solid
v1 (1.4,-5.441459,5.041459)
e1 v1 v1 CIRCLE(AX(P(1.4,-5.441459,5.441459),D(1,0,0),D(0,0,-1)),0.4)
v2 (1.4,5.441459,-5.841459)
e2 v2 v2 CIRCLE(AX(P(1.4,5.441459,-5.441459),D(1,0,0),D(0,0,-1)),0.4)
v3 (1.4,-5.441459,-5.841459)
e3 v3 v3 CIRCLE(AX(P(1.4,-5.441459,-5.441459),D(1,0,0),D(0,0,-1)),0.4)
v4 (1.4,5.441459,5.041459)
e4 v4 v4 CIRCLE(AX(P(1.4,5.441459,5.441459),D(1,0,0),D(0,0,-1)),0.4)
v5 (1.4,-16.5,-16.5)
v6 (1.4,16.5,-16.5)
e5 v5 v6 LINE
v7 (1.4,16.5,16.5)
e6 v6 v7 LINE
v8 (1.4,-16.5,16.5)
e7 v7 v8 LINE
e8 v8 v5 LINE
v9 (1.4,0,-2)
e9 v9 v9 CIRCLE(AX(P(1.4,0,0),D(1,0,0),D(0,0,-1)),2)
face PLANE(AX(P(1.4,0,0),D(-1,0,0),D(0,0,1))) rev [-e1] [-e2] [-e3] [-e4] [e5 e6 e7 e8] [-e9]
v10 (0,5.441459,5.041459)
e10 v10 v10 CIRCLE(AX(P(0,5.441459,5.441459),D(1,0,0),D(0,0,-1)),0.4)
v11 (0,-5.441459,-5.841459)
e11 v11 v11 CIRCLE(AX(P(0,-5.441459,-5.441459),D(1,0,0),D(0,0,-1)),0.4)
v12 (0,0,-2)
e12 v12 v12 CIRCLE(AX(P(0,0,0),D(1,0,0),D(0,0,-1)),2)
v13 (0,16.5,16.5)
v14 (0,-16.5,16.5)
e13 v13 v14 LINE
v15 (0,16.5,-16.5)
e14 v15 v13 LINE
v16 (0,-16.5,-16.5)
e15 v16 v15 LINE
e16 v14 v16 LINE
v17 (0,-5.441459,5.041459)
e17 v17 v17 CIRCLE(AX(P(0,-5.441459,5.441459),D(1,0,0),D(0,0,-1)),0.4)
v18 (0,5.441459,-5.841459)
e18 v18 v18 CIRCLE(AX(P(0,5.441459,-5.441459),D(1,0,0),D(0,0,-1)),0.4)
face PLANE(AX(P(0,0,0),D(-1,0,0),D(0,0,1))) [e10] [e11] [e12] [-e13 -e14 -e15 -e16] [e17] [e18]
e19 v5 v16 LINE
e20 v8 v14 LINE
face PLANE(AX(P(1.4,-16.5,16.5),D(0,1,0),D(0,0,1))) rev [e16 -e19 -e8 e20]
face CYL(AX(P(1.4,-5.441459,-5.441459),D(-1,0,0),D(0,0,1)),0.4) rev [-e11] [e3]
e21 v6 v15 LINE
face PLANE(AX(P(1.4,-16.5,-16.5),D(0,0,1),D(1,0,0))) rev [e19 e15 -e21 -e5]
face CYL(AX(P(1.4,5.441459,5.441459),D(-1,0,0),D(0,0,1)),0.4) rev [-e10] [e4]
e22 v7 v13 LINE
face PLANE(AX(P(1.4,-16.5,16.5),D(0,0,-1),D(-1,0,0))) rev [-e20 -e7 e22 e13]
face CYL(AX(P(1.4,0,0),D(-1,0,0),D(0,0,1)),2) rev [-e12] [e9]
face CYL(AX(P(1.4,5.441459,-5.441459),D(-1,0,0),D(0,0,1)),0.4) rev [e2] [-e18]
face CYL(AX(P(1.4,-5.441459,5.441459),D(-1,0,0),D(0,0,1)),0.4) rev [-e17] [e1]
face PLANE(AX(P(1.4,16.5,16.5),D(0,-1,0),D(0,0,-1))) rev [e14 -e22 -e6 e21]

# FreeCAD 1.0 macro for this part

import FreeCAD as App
import Part
import Sketcher
Q = App.Units.Quantity

doc = App.newDocument("Part")
body = doc.addObject("PartDesign::Body", "Body")

# Sketch on YZ plane
sketch1 = doc.addObject("Sketcher::SketchObject", "Sketch")
body.addObject(sketch1)
sketch1.AttachmentSupport = (doc.YZ_Plane, [""])
sketch1.MapMode = "FlatFace"
sketch1.addGeometry([
    Part.LineSegment(App.Vector(16.5, 16.5, 0), App.Vector(-16.5, 16.5, 0)),  # 0
    Part.LineSegment(App.Vector(-16.5, 16.5, 0), App.Vector(-16.5, -16.5, 0)),  # 1
    Part.LineSegment(App.Vector(-16.5, -16.5, 0), App.Vector(16.5, -16.5, 0)),  # 2
    Part.LineSegment(App.Vector(16.5, -16.5, 0), App.Vector(16.5, 16.5, 0)),  # 3
    Part.Circle(App.Vector(-5.44, 5.44, 0), App.Vector(0, 0, 1), 0.4),  # 4
    Part.Circle(App.Vector(-5.44, -5.44, 0), App.Vector(0, 0, 1), 0.4),  # 5
    Part.Circle(App.Vector(5.44, 5.44, 0), App.Vector(0, 0, 1), 0.4),  # 6
    Part.Circle(App.Vector(0, 0, 0), App.Vector(0, 0, 1), 2),  # 7
    Part.Circle(App.Vector(5.44, -5.44, 0), App.Vector(0, 0, 1), 0.4),  # 8
], False)
sketch1.addConstraint([
    Sketcher.Constraint("Coincident", 0, 2, 1, 1),
    Sketcher.Constraint("Coincident", 1, 2, 2, 1),
    Sketcher.Constraint("Coincident", 2, 2, 3, 1),
    Sketcher.Constraint("Coincident", 3, 2, 0, 1),
    Sketcher.Constraint("Horizontal", 0),
    Sketcher.Constraint("Vertical", 1),
    Sketcher.Constraint("Horizontal", 2),
    Sketcher.Constraint("Vertical", 3),
    Sketcher.Constraint("Coincident", 7, 3, -1, 1),
    Sketcher.Constraint("Equal", 4, 5),
    Sketcher.Constraint("Equal", 5, 6),
    Sketcher.Constraint("Equal", 6, 8),
    Sketcher.Constraint("Symmetric", 5, 3, 6, 3, -1, 1),
    Sketcher.Constraint("Symmetric", 4, 3, 8, 3, -1, 1),
    Sketcher.Constraint("Symmetric", 0, 2, 2, 2, -1, 1),
    Sketcher.Constraint("Symmetric", 4, 3, 6, 3, -2),
    Sketcher.Constraint("Equal", 2, 1),
    Sketcher.Constraint("Diameter", 7, Q("4 mm")),
    Sketcher.Constraint("Diameter", 4, Q("0.8 mm")),
    Sketcher.Constraint("DistanceX", 0, 2, 0, 1, Q("33 mm")),
    Sketcher.Constraint("DistanceX", 4, 3, -1, 1, Q("5.441459 mm")),
    Sketcher.Constraint("DistanceY", -1, 1, 4, 3, Q("5.441459 mm")),
])
pad1 = doc.addObject("PartDesign::Pad", "Pad")
body.addObject(pad1)
pad1.Profile = sketch1
pad1.Length = 1.4

doc.recompute()
